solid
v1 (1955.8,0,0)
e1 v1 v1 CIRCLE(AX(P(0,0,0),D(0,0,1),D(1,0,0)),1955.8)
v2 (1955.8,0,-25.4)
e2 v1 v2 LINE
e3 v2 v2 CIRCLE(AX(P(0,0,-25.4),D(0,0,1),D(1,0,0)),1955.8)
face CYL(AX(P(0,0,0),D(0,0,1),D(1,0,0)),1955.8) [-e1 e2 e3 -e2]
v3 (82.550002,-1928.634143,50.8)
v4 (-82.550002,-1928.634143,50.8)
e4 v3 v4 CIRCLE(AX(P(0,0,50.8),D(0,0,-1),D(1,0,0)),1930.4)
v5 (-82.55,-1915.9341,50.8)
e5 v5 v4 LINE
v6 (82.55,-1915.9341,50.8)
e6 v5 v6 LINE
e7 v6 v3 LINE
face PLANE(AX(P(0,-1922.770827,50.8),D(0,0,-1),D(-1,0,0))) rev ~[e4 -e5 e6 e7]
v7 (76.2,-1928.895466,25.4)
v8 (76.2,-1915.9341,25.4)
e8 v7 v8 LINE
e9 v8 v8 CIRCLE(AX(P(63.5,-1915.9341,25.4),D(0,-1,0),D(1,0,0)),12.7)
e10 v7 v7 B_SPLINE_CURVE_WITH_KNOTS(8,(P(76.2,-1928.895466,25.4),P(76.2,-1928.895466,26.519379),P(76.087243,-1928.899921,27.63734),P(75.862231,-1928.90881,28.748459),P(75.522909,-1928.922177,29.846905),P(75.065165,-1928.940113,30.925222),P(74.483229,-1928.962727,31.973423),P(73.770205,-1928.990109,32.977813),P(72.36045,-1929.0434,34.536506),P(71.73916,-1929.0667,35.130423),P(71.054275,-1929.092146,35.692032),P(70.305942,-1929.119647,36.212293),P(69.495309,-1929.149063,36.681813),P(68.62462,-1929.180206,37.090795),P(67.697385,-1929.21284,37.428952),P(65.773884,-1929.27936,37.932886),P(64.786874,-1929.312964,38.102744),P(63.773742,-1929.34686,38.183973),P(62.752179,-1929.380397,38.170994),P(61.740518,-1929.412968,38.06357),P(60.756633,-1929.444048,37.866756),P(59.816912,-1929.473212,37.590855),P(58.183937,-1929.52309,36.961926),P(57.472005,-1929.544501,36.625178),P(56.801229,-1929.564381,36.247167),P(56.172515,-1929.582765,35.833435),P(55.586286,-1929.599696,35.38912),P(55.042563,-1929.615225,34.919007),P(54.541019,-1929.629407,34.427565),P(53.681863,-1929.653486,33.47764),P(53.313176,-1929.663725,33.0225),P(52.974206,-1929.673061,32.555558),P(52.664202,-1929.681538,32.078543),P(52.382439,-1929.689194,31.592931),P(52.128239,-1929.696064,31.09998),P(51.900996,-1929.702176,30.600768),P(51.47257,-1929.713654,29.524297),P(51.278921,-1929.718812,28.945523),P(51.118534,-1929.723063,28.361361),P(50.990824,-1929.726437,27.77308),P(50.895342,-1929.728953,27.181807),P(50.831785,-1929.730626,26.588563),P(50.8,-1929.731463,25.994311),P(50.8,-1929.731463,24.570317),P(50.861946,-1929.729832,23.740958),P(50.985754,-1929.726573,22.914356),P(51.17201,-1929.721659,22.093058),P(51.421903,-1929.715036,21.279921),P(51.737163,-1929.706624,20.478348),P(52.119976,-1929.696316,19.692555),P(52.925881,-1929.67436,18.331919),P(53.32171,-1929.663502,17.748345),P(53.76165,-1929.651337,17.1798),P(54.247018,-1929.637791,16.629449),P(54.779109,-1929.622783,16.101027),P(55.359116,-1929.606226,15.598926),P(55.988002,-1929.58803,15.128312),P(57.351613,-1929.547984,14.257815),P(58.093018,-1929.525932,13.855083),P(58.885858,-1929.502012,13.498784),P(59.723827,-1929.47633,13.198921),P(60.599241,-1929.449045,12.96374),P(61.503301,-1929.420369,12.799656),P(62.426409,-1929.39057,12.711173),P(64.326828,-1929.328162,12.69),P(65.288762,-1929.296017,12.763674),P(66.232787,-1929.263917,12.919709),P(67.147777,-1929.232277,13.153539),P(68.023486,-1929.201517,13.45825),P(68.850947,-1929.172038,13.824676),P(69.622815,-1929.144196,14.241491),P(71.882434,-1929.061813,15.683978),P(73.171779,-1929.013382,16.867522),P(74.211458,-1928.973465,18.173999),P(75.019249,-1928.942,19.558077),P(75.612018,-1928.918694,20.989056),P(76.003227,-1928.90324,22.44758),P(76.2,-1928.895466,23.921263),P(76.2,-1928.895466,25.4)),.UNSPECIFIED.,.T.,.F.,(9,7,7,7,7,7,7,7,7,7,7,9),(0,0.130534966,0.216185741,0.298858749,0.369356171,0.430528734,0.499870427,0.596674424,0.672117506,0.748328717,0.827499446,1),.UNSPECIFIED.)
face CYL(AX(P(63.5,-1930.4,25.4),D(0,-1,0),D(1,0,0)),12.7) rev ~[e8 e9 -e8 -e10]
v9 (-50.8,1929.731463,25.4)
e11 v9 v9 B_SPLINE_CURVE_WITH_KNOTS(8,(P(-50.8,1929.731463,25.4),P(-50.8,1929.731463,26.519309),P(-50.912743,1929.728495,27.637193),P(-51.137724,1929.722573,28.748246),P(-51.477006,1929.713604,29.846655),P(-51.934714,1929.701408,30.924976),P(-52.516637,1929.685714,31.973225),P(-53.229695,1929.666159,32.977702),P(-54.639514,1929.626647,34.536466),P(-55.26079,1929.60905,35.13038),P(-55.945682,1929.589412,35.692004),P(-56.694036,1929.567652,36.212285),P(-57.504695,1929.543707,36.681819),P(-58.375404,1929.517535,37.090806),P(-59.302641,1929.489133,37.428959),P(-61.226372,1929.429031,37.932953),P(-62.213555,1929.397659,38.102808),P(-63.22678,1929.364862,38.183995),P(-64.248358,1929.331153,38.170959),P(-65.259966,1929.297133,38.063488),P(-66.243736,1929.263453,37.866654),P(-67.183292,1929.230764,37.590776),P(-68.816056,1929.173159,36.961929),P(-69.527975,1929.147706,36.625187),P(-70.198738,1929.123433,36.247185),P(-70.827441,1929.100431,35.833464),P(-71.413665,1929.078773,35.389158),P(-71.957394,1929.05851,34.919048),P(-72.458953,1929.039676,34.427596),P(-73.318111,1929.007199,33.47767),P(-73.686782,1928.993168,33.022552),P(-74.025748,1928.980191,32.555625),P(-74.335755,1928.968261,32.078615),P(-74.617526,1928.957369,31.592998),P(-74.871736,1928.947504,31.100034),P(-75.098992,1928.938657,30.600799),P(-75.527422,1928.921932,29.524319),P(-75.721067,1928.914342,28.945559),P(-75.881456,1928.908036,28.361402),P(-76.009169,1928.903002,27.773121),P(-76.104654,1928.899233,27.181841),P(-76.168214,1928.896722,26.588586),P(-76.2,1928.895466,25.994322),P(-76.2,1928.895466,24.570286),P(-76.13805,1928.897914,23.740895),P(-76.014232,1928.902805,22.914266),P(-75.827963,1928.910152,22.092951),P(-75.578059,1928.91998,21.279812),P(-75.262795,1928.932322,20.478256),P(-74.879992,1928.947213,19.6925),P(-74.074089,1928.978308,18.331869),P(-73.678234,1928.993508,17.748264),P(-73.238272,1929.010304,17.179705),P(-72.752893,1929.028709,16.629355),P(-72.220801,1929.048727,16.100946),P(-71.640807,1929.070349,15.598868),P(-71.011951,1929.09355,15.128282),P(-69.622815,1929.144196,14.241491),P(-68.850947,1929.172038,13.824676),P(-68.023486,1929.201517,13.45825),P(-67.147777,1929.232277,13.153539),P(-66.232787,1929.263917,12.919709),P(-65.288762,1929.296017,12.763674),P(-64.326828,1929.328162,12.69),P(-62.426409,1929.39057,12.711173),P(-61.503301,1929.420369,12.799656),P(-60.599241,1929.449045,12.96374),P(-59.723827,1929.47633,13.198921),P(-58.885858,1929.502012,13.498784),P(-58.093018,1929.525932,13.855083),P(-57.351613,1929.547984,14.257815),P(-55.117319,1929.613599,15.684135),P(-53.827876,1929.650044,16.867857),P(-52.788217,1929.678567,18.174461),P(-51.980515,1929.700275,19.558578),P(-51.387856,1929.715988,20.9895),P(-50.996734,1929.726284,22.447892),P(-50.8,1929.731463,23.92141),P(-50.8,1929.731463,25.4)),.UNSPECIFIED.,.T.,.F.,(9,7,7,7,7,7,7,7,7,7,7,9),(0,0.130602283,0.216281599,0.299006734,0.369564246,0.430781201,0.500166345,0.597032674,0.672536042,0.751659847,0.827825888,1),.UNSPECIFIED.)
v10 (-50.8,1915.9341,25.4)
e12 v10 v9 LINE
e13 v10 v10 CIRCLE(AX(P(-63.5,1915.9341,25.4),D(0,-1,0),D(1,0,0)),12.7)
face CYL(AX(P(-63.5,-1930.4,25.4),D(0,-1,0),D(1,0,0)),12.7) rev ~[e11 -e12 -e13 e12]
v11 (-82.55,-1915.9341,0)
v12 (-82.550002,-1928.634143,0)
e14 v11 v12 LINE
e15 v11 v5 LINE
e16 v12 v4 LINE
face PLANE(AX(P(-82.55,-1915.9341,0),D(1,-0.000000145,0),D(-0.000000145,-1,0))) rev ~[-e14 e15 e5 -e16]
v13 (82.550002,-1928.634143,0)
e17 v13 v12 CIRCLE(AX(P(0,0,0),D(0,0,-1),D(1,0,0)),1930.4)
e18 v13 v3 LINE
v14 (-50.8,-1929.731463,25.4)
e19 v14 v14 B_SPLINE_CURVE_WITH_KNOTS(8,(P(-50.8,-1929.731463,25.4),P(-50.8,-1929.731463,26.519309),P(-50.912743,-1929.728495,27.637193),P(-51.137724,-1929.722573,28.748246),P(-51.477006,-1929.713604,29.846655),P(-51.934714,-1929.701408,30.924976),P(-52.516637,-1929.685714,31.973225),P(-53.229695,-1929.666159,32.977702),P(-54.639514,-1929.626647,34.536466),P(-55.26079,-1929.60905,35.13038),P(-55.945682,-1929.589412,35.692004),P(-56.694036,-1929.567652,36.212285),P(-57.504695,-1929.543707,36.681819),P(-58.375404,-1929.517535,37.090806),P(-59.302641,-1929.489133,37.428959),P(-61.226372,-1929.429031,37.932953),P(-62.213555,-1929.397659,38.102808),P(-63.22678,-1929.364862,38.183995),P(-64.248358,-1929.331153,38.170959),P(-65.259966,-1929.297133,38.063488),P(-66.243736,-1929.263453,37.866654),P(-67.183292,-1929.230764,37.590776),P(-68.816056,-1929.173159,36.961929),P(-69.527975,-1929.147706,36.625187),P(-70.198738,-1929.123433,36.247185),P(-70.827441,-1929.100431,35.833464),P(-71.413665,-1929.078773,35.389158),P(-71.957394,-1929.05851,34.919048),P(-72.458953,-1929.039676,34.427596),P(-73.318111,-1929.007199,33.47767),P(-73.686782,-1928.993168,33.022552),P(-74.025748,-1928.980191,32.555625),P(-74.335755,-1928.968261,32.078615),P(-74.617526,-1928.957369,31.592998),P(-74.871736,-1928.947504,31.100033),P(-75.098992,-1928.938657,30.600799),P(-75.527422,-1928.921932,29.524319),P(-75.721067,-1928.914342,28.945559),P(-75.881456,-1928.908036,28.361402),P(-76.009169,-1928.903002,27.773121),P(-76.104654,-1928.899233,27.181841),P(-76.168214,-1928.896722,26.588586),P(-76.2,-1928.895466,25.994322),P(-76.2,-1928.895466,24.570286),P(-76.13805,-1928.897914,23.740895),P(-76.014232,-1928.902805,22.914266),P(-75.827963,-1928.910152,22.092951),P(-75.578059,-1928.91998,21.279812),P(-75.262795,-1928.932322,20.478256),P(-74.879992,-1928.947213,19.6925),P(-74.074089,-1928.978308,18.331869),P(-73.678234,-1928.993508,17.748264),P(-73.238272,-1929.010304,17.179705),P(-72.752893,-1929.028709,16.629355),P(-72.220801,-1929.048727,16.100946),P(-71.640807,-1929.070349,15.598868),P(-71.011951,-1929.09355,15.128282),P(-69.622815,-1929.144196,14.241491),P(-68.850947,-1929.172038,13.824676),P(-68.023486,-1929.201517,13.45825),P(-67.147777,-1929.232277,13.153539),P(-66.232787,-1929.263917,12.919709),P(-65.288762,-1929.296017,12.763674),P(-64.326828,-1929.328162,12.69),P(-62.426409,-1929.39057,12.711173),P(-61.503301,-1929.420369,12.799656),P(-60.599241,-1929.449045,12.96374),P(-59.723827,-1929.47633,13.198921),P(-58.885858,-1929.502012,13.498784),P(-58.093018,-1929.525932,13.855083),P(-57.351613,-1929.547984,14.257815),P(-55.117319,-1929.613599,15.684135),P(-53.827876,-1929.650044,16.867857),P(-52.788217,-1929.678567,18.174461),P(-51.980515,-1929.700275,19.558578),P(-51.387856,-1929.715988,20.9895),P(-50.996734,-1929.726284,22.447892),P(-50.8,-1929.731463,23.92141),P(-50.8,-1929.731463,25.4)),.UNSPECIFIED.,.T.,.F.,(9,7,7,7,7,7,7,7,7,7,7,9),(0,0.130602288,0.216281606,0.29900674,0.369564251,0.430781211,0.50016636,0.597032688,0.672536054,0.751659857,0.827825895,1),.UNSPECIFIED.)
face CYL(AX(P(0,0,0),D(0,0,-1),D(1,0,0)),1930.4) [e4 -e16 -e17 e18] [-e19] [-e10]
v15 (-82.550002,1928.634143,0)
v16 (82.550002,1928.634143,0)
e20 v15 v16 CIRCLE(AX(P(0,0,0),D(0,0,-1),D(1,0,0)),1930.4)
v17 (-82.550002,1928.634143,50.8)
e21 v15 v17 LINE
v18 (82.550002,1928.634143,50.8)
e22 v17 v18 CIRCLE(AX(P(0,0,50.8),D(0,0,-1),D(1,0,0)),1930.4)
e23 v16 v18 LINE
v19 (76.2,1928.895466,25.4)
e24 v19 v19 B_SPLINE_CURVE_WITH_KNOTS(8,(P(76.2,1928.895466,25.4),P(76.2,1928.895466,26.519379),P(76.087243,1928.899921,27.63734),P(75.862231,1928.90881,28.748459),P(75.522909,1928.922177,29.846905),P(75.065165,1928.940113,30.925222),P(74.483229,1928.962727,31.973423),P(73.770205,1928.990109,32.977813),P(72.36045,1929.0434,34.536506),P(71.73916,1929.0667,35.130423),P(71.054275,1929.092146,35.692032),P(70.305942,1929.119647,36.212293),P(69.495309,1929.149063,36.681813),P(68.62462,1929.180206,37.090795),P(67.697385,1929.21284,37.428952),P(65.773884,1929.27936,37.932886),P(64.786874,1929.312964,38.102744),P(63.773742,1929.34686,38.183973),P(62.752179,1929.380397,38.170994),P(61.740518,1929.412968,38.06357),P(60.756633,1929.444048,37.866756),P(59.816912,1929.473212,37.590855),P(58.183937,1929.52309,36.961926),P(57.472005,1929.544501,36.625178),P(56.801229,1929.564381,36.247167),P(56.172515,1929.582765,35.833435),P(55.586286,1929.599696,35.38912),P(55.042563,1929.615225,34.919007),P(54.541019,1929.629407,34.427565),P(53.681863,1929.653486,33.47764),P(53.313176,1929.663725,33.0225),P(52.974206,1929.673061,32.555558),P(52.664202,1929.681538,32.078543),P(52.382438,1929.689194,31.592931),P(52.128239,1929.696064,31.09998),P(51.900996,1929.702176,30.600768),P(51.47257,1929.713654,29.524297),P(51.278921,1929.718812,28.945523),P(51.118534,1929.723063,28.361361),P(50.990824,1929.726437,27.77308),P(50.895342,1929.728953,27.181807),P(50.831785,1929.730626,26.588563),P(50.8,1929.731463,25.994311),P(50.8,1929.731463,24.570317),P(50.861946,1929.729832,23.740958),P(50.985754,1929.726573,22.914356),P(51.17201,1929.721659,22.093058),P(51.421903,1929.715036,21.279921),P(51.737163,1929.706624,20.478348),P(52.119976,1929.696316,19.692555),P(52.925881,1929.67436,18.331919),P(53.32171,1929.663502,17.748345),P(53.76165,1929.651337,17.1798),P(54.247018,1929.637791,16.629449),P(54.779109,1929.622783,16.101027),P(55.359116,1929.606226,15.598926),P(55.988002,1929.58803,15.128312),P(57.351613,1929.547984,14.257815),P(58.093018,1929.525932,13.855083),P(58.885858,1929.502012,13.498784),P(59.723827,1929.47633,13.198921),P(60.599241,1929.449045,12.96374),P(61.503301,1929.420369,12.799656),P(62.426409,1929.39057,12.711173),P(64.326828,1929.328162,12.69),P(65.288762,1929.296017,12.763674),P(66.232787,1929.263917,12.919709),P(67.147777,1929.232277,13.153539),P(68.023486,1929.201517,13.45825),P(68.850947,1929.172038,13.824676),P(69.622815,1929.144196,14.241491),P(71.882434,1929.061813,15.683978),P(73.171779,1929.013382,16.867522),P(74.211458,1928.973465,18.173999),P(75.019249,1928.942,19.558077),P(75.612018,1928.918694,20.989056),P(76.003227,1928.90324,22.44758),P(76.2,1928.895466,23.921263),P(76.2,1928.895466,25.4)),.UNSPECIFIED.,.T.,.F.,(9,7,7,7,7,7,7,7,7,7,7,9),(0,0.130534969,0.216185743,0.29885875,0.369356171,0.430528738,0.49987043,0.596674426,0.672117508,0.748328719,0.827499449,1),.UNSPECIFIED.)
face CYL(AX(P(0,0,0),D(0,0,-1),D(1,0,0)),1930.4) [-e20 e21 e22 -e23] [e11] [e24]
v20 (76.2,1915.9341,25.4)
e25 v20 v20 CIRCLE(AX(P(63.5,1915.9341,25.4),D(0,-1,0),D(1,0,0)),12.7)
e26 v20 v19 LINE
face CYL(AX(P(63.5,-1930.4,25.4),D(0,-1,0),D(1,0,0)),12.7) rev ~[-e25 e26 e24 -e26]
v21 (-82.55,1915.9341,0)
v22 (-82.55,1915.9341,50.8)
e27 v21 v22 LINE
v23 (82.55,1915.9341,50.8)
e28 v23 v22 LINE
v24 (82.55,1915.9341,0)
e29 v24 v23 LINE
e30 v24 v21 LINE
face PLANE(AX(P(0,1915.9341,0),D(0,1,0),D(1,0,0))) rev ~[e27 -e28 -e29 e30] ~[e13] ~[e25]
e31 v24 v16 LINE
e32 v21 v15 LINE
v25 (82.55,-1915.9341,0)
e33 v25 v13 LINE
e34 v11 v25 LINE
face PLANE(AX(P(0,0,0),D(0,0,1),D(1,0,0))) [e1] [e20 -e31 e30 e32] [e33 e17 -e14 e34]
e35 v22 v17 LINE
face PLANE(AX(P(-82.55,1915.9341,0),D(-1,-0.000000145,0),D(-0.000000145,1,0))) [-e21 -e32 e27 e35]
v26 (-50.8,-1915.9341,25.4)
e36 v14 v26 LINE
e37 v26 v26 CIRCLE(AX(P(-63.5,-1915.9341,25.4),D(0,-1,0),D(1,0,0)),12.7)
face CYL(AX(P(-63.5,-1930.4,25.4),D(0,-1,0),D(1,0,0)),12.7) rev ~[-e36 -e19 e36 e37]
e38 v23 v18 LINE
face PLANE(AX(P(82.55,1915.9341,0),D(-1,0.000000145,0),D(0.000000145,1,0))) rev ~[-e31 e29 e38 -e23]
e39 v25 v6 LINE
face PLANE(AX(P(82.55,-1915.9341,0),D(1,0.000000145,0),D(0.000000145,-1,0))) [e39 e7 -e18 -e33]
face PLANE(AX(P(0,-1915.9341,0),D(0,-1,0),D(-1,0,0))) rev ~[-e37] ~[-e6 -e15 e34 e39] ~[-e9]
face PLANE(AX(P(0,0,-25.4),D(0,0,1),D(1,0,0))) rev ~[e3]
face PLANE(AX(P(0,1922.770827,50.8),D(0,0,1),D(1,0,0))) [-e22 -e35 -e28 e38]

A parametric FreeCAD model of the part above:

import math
import FreeCAD as App
import Part
import Sketcher
from FreeCAD import Vector
Q = App.Units.Quantity

doc = App.newDocument("Part")
params = doc.addObject("Spreadsheet::Sheet", "Params")
for row, (alias, value) in enumerate([
    ("sketch1_diameter", "154 in"),
    ("pad1_length", "1 in"),
    ("sketch2_radius", "76 in"),
    ("sketch2_width", "6.5 in"),
    ("sketch2_height", "0.5 in"),
    ("pad2_length", "2 in"),
    ("sketch3_diameter", "1 in"),
], start=1):
    params.set(f"A{row}", alias)
    params.set(f"B{row}", "=" + value)
    params.setAlias(f"B{row}", alias)

body = doc.addObject("PartDesign::Body", "Body")

sketch1 = body.newObject("Sketcher::SketchObject", "Sketch")
sketch1.AttachmentSupport = (doc.getObject("XY_Plane"), [""])
sketch1.MapMode = "FlatFace"
sketch1.addGeometry(Part.Circle(Vector(0, 0, 0), Vector(0, 0, 1), 1955.8), False)
sketch1.addConstraint(Sketcher.Constraint("Coincident", 0, 3, -1, 1))
sketch1.addConstraint(Sketcher.Constraint("Diameter", 0, Q("154 in")))
sketch1.setExpression("Constraints[1]", "Params.sketch1_diameter")
pad1 = body.newObject("PartDesign::Pad", "Pad")
pad1.Profile = sketch1
pad1.setExpression("Length", "Params.pad1_length")
pad1.Reversed = True

sketch2 = body.newObject("Sketcher::SketchObject", "Sketch001")
sketch2.AttachmentSupport = (doc.getObject("XY_Plane"), [""])
sketch2.MapMode = "FlatFace"
sketch2.addGeometry(Part.LineSegment(Vector(82.55, -1915.9341, 0), Vector(-82.55, -1915.9341, 0)), False)
sketch2.addGeometry(Part.LineSegment(Vector(-82.55, -1915.9341, 0), Vector(-82.55, -1928.6341, 0)), False)
sketch2.addGeometry(Part.ArcOfCircle(Part.Circle(Vector(0, 0, 0), Vector(0, 0, 1), 1930.399957), math.radians(-92.450896), math.radians(-87.549104)), False)
sketch2.addGeometry(Part.LineSegment(Vector(82.55, -1928.6341, 0), Vector(82.55, -1915.9341, 0)), False)
sketch2.addGeometry(Part.LineSegment(Vector(-82.55, 1915.9341, 0), Vector(82.55, 1915.9341, 0)), False)
sketch2.addGeometry(Part.LineSegment(Vector(82.55, 1915.9341, 0), Vector(82.55, 1928.6341, 0)), False)
sketch2.addGeometry(Part.ArcOfCircle(Part.Circle(Vector(0, 0, 0), Vector(0, 0, 1), 1930.399957), math.radians(87.549104), math.radians(92.450896)), False)
sketch2.addGeometry(Part.LineSegment(Vector(-82.55, 1928.6341, 0), Vector(-82.55, 1915.9341, 0)), False)
sketch2.addConstraint(Sketcher.Constraint("Coincident", 0, 2, 1, 1))
sketch2.addConstraint(Sketcher.Constraint("Coincident", 1, 2, 2, 1))
sketch2.addConstraint(Sketcher.Constraint("Coincident", 2, 2, 3, 1))
sketch2.addConstraint(Sketcher.Constraint("Coincident", 3, 2, 0, 1))
sketch2.addConstraint(Sketcher.Constraint("Coincident", 4, 2, 5, 1))
sketch2.addConstraint(Sketcher.Constraint("Coincident", 5, 2, 6, 1))
sketch2.addConstraint(Sketcher.Constraint("Coincident", 6, 2, 7, 1))
sketch2.addConstraint(Sketcher.Constraint("Coincident", 7, 2, 4, 1))
sketch2.addConstraint(Sketcher.Constraint("Horizontal", 0))
sketch2.addConstraint(Sketcher.Constraint("Vertical", 1))
sketch2.addConstraint(Sketcher.Constraint("Vertical", 3))
sketch2.addConstraint(Sketcher.Constraint("Horizontal", 4))
sketch2.addConstraint(Sketcher.Constraint("Vertical", 5))
sketch2.addConstraint(Sketcher.Constraint("Vertical", 7))
sketch2.addConstraint(Sketcher.Constraint("Coincident", 2, 3, -1, 1))
sketch2.addConstraint(Sketcher.Constraint("Coincident", 6, 3, -1, 1))
sketch2.addConstraint(Sketcher.Constraint("Equal", 2, 6))
sketch2.addConstraint(Sketcher.Constraint("Symmetric", 0, 2, 4, 2, -1, 1))
sketch2.addConstraint(Sketcher.Constraint("Vertical", 3, 2, 4, 2))
sketch2.addConstraint(Sketcher.Constraint("Equal", 0, 4))
sketch2.addConstraint(Sketcher.Constraint("Radius", 2, Q("76 in")))
sketch2.addConstraint(Sketcher.Constraint("DistanceX", 0, 2, 0, 1, Q("6.5 in")))
sketch2.addConstraint(Sketcher.Constraint("DistanceY", 1, 2, 1, 1, Q("0.5 in")))
sketch2.setExpression("Constraints[20]", "Params.sketch2_radius")
sketch2.setExpression("Constraints[21]", "Params.sketch2_width")
sketch2.setExpression("Constraints[22]", "Params.sketch2_height")
pad2 = body.newObject("PartDesign::Pad", "Pad001")
pad2.Profile = sketch2
pad2.setExpression("Length", "Params.pad2_length")

sketch3 = body.newObject("Sketcher::SketchObject", "Sketch002")
sketch3.AttachmentSupport = (doc.getObject("XZ_Plane"), [""])
sketch3.MapMode = "FlatFace"
sketch3.AttachmentOffset = App.Placement(Vector(0, 0, 76 * 25.4), App.Rotation())
sketch3.addGeometry(Part.Circle(Vector(-63.5, 25.4, 0), Vector(0, 0, 1), 12.7), False)
sketch3.addGeometry(Part.Circle(Vector(63.5, 25.4, 0), Vector(0, 0, 1), 12.7), False)
sketch3.addConstraint(Sketcher.Constraint("Equal", 0, 1))
sketch3.addConstraint(Sketcher.Constraint("Symmetric", 0, 3, 1, 3, -2))
sketch3.addConstraint(Sketcher.Constraint("Diameter", 0, Q("1 in")))
sketch3.addConstraint(Sketcher.Constraint("DistanceY", -1, 1, 0, 3, Q("1 in")))
sketch3.addConstraint(Sketcher.Constraint("DistanceX", 0, 3, 1, 3, Q("5 in")))
sketch3.setExpression("Constraints[2]", "Params.sketch3_diameter")
pocket1 = body.newObject("PartDesign::Pocket", "Pocket")
pocket1.Profile = sketch3
pocket1.Type = "ThroughAll"

doc.recompute()
